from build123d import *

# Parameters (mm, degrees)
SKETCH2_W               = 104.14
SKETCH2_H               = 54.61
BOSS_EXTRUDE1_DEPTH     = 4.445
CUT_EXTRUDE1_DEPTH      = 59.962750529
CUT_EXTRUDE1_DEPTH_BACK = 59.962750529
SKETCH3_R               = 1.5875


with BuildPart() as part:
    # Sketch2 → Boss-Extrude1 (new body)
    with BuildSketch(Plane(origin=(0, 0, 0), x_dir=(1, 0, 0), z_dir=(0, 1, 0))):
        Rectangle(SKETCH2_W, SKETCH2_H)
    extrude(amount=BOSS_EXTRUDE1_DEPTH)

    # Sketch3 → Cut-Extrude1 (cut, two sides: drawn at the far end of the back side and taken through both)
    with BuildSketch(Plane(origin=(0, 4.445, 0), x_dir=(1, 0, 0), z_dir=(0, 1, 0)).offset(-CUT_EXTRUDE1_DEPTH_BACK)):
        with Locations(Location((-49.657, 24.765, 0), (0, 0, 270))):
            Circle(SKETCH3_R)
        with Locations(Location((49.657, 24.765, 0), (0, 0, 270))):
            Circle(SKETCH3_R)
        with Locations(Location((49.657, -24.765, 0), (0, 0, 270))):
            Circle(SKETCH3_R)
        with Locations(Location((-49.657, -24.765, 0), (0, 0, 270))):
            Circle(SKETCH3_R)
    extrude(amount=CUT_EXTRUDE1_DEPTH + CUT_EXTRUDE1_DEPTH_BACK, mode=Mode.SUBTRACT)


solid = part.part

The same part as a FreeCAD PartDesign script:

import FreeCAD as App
import Part
import Sketcher
Q = App.Units.Quantity

doc = App.newDocument("Part")
params = doc.addObject("Spreadsheet::Sheet", "Params")
for row, (alias, value) in enumerate([
    ("sketch1_width", "4.1 in"),
    ("sketch1_height", "2.15 in"),
    ("pad1_length", "0.175 in"),
    ("sketch2_diameter", "0.125 in"),
], start=1):
    params.set(f"A{row}", alias)
    params.set(f"B{row}", "=" + value)
    params.setAlias(f"B{row}", alias)

body = doc.addObject("PartDesign::Body", "Body")

sketch1 = body.newObject("Sketcher::SketchObject", "Sketch")
sketch1.AttachmentSupport = (doc.getObject("XZ_Plane"), [""])
sketch1.MapMode = "FlatFace"
sketch1.addGeometry([
    Part.LineSegment(App.Vector(-52, -27, 0), App.Vector(-52, 27, 0)),
    Part.LineSegment(App.Vector(-52, 27, 0), App.Vector(52, 27, 0)),
    Part.LineSegment(App.Vector(52, 27, 0), App.Vector(52, -27, 0)),
    Part.LineSegment(App.Vector(52, -27, 0), App.Vector(-52, -27, 0)),
], False)
sketch1.addConstraint([
    Sketcher.Constraint("Coincident", 0, 2, 1, 1),
    Sketcher.Constraint("Coincident", 1, 2, 2, 1),
    Sketcher.Constraint("Coincident", 2, 2, 3, 1),
    Sketcher.Constraint("Coincident", 3, 2, 0, 1),
    Sketcher.Constraint("Vertical", 0),
    Sketcher.Constraint("Horizontal", 1),
    Sketcher.Constraint("Vertical", 2),
    Sketcher.Constraint("Horizontal", 3),
    Sketcher.Constraint("Symmetric", 0, 2, 2, 2, -1, 1),
    Sketcher.Constraint("DistanceX", 1, 1, 1, 2, Q("4.1 in")),
    Sketcher.Constraint("DistanceY", 0, 1, 0, 2, Q("2.15 in")),
])
sketch1.setExpression("Constraints[9]", "Params.sketch1_width")
sketch1.setExpression("Constraints[10]", "Params.sketch1_height")
pad1 = body.newObject("PartDesign::Pad", "Pad")
pad1.Profile = sketch1
pad1.setExpression("Length", "Params.pad1_length")
pad1.Reversed = True

sketch2 = body.newObject("Sketcher::SketchObject", "Sketch001")
sketch2.AttachmentSupport = (doc.getObject("XZ_Plane"), [""])
sketch2.MapMode = "FlatFace"
sketch2.AttachmentOffset = App.Placement(App.Vector(0, 0, -0.175 * 25.4), App.Rotation())
sketch2.addGeometry([
    Part.Circle(App.Vector(-49.7, -24.8, 0), App.Vector(0, 0, 1), 1.6),
    Part.Circle(App.Vector(49.7, -24.8, 0), App.Vector(0, 0, 1), 1.6),
    Part.Circle(App.Vector(49.7, 24.8, 0), App.Vector(0, 0, 1), 1.6),
    Part.Circle(App.Vector(-49.7, 24.8, 0), App.Vector(0, 0, 1), 1.6),
], False)
sketch2.addConstraint([
    Sketcher.Constraint("Equal", 0, 1),
    Sketcher.Constraint("Equal", 1, 2),
    Sketcher.Constraint("Equal", 2, 3),
    Sketcher.Constraint("Symmetric", 0, 3, 2, 3, -1, 1),
    Sketcher.Constraint("Symmetric", 1, 3, 3, 3, -1, 1),
    Sketcher.Constraint("Symmetric", 0, 3, 1, 3, -2),
    Sketcher.Constraint("Diameter", 0, Q("0.125 in")),
    Sketcher.Constraint("DistanceX", 0, 3, 1, 3, Q("3.91 in")),
    Sketcher.Constraint("DistanceY", 1, 3, 2, 3, Q("1.95 in")),
])
sketch2.setExpression("Constraints[6]", "Params.sketch2_diameter")
pocket1 = body.newObject("PartDesign::Pocket", "Pocket")
pocket1.Profile = sketch2
pocket1.Type = "ThroughAll"
pocket1.Midplane = True

doc.recompute()
